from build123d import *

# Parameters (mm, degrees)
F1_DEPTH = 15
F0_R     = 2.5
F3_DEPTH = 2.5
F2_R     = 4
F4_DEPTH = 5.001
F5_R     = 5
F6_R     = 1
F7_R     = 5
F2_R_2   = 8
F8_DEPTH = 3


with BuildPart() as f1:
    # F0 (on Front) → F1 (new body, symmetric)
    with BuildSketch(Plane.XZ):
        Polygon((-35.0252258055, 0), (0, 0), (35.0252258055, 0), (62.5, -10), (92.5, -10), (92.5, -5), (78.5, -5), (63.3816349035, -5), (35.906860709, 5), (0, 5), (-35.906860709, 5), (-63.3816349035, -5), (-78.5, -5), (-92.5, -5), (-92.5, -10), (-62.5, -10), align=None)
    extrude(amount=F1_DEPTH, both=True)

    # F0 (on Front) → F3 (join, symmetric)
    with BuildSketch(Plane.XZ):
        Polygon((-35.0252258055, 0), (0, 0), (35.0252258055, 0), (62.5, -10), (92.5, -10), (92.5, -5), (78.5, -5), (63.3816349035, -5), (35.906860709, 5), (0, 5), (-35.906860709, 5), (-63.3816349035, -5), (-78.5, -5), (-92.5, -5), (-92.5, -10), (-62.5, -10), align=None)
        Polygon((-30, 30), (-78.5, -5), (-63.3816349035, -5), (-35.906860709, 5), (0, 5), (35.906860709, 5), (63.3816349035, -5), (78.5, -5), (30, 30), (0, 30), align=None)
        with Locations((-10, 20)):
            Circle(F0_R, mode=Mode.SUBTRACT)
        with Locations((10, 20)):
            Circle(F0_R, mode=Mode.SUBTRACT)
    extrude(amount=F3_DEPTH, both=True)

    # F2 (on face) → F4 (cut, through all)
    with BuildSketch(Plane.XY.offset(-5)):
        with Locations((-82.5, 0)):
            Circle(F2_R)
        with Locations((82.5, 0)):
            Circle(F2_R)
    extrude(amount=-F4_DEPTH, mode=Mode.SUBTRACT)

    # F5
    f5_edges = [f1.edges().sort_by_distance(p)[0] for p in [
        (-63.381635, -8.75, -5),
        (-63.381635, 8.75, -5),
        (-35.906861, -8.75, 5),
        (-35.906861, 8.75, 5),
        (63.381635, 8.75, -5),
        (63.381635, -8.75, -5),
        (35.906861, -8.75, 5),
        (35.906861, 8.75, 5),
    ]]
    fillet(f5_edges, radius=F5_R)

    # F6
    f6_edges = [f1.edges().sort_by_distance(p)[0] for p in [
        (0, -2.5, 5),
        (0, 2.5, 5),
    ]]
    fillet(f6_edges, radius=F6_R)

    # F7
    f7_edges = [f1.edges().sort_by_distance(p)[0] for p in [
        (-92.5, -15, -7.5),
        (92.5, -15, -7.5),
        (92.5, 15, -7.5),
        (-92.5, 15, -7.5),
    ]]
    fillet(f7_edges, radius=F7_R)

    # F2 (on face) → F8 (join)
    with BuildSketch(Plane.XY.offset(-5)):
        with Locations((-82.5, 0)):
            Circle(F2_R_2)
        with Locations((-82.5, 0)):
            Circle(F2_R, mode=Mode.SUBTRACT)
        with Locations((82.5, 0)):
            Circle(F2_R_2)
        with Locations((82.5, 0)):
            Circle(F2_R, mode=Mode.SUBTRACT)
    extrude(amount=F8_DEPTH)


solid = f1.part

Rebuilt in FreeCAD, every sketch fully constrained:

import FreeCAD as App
import Part
import Sketcher

V = App.Vector
Q = App.Units.Quantity


def edges_at(feature, points):
    """Names of the edges that pass closest to the given points."""
    edges = feature.Shape.Edges
    near = lambda p: min(range(len(edges)), key=lambda i: edges[i].distToShape(Part.Vertex(*p))[0])
    return sorted({f"Edge{near(p) + 1}" for p in points})


def add_polygon(sketch, points):
    """Adds a closed chain of lines whose ends are joined by coincident constraints."""
    first, n = sketch.GeometryCount, len(points)
    for a, b in zip(points, points[1:] + points[:1]):
        sketch.addGeometry(Part.LineSegment(App.Vector(*a, 0), App.Vector(*b, 0)), False)
    for i in range(n):
        sketch.addConstraint(Sketcher.Constraint("Coincident", first + i, 2, first + (i + 1) % n, 1))

doc = App.newDocument("Part")
params = doc.addObject("Spreadsheet::Sheet", "Params")
for row, (alias, value) in enumerate([
    ("sketch1_width", "30 mm"),
    ("sketch1_height", "5 mm"),
    ("pad1_length", "30 mm"),
    ("sketch2_diameter", "5 mm"),
    ("sketch2_width", "30 mm"),
    ("sketch2_width2", "14 mm"),
    ("sketch2_width3", "60 mm"),
    ("sketch2_height", "5 mm"),
    ("pad2_length", "5 mm"),
    ("sketch3_diameter", "8 mm"),
    ("fillet_radius", "5 mm"),
    ("fillet2_radius", "1 mm"),
    ("fillet3_radius", "5 mm"),
    ("sketch4_diameter", "16 mm"),
    ("sketch4_diameter2", "8 mm"),
    ("pad3_length", "3 mm"),
], start=1):
    params.set(f"A{row}", alias)
    params.set(f"B{row}", "=" + value)
    params.setAlias(f"B{row}", alias)

body = doc.addObject("PartDesign::Body", "Body")

# Sketch on XZ plane
sketch1 = body.newObject("Sketcher::SketchObject", "Sketch")
sketch1.AttachmentSupport = (doc.getObject("XZ_Plane"), [""])
sketch1.MapMode = "FlatFace"
add_polygon(sketch1, [(-35.025226, 0), (35.025226, 0), (62.5, -10), (92.5, -10), (92.5, -5), (63.381635, -5), (35.906861, 5), (-35.906861, 5), (-63.381635, -5), (-92.5, -5), (-92.5, -10), (-62.5, -10)])  # lines 0-11
sketch1.addConstraint([
    Sketcher.Constraint("Horizontal", 0),
    Sketcher.Constraint("Horizontal", 2),
    Sketcher.Constraint("Vertical", 3),
    Sketcher.Constraint("Horizontal", 4),
    Sketcher.Constraint("Horizontal", 6),
    Sketcher.Constraint("Horizontal", 8),
    Sketcher.Constraint("Vertical", 9),
    Sketcher.Constraint("Horizontal", 10),
    Sketcher.Constraint("Symmetric", 0, 2, 11, 2, -1, 1),
    Sketcher.Constraint("Symmetric", 4, 2, 7, 2, -2),
    Sketcher.Constraint("Symmetric", 2, 2, 9, 2, -2),
    Sketcher.Constraint("Parallel", 1, 5),
    Sketcher.Constraint("Parallel", 7, 11),
    Sketcher.Constraint("Equal", 2, 10),
    Sketcher.Constraint("Equal", 1, 5),
    Sketcher.Constraint("DistanceX", 2, 1, 2, 2, 30.0),
    Sketcher.Constraint("DistanceY", 3, 1, 3, 2, 5.0),
    Sketcher.Constraint("Angle", 1, Q("-20 deg")),
    Sketcher.Constraint("DistanceY", 1, 2, -1, 1, 10.0),
    Sketcher.Constraint("DistanceX", 8, 2, 1, 2, 155.0),
    Sketcher.Constraint("DistanceX", 6, 2, 6, 1, 71.813721),
])
sketch1.setExpression("Constraints[27]", "Params.sketch1_width")
sketch1.setExpression("Constraints[28]", "Params.sketch1_height")
pad1 = body.newObject("PartDesign::Pad", "Pad")
pad1.Profile = sketch1
pad1.setExpression("Length", "Params.pad1_length")
pad1.Midplane = True

# Sketch on XZ plane
sketch2 = body.newObject("Sketcher::SketchObject", "Sketch001")
sketch2.AttachmentSupport = (doc.getObject("XZ_Plane"), [""])
sketch2.MapMode = "FlatFace"
add_polygon(sketch2, [(-35.025226, 0), (35.025226, 0), (62.5, -10), (92.5, -10), (92.5, -5), (78.5, -5), (30, 30), (-30, 30), (-78.5, -5), (-92.5, -5), (-92.5, -10), (-62.5, -10)])  # lines 0-11
sketch2.addGeometry(Part.Circle(V(-10, 20, 0), V(0, 0, 1), 2.5), False)  # 12
sketch2.addGeometry(Part.Circle(V(10, 20, 0), V(0, 0, 1), 2.5), False)  # 13
sketch2.addConstraint([
    Sketcher.Constraint("Horizontal", 0),
    Sketcher.Constraint("Horizontal", 2),
    Sketcher.Constraint("Vertical", 3),
    Sketcher.Constraint("Horizontal", 4),
    Sketcher.Constraint("Horizontal", 6),
    Sketcher.Constraint("Horizontal", 8),
    Sketcher.Constraint("Vertical", 9),
    Sketcher.Constraint("Horizontal", 10),
    Sketcher.Constraint("Equal", 12, 13),
    Sketcher.Constraint("Symmetric", 0, 2, 11, 2, -1, 1),
    Sketcher.Constraint("Symmetric", 12, 3, 13, 3, -2),
    Sketcher.Constraint("Symmetric", 4, 2, 7, 2, -2),
    Sketcher.Constraint("Symmetric", 2, 2, 9, 2, -2),
    Sketcher.Constraint("Equal", 2, 10),
    Sketcher.Constraint("Equal", 5, 7),
    Sketcher.Constraint("Diameter", 12, 5.0),
    Sketcher.Constraint("DistanceX", 2, 1, 2, 2, 30.0),
    Sketcher.Constraint("DistanceX", 4, 2, 4, 1, 14.0),
    Sketcher.Constraint("DistanceX", 6, 2, 6, 1, 60.0),
    Sketcher.Constraint("DistanceY", 3, 1, 3, 2, 5.0),
    Sketcher.Constraint("Angle", 1, Q("-20 deg")),
    Sketcher.Constraint("DistanceX", 12, 3, -1, 1, 10.0),
    Sketcher.Constraint("DistanceY", -1, 1, 12, 3, 20.0),
    Sketcher.Constraint("DistanceY", 1, 2, -1, 1, 10.0),
    Sketcher.Constraint("DistanceY", -1, 1, 5, 2, 30.0),
    Sketcher.Constraint("DistanceX", -1, 1, 1, 2, 62.5),
])
sketch2.setExpression("Constraints[27]", "Params.sketch2_diameter")
sketch2.setExpression("Constraints[28]", "Params.sketch2_width")
sketch2.setExpression("Constraints[29]", "Params.sketch2_width2")
sketch2.setExpression("Constraints[30]", "Params.sketch2_width3")
sketch2.setExpression("Constraints[31]", "Params.sketch2_height")
pad2 = body.newObject("PartDesign::Pad", "Pad001")
pad2.Profile = sketch2
pad2.setExpression("Length", "Params.pad2_length")
pad2.Midplane = True

# Sketch on XY plane
sketch3 = body.newObject("Sketcher::SketchObject", "Sketch002")
sketch3.AttachmentSupport = (doc.getObject("XY_Plane"), [""])
sketch3.MapMode = "FlatFace"
sketch3.AttachmentOffset = App.Placement(V(0, 0, -5), App.Rotation())
sketch3.addGeometry([
    Part.Circle(V(-82.5, 0, 0), V(0, 0, 1), 4),
    Part.Circle(V(82.5, 0, 0), V(0, 0, 1), 4),
], False)
sketch3.addConstraint([
    Sketcher.Constraint("Equal", 0, 1),
    Sketcher.Constraint("Symmetric", 0, 3, 1, 3, -1, 1),
    Sketcher.Constraint("PointOnObject", 0, 3, -1),
    Sketcher.Constraint("Diameter", 0, 8.0),
    Sketcher.Constraint("DistanceX", 0, 3, 1, 3, 165.0),
])
sketch3.setExpression("Constraints[3]", "Params.sketch3_diameter")
pocket1 = body.newObject("PartDesign::Pocket", "Pocket")
pocket1.Profile = sketch3
pocket1.Type = "ThroughAll"
doc.recompute()

fillet = body.newObject("PartDesign::Fillet", "Fillet")
fillet.Base = (pocket1, edges_at(pocket1, [
    (-63.382, -8.75, -5),
    (-63.382, 8.75, -5),
    (-35.907, -8.75, 5),
    (-35.907, 8.75, 5),
    (63.382, 8.75, -5),
    (63.382, -8.75, -5),
    (35.907, -8.75, 5),
    (35.907, 8.75, 5),
]))
fillet.setExpression("Radius", "Params.fillet_radius")
doc.recompute()

fillet2 = body.newObject("PartDesign::Fillet", "Fillet001")
fillet2.Base = (fillet, edges_at(fillet, [(0, -2.5, 5), (0, 2.5, 5)]))
fillet2.setExpression("Radius", "Params.fillet2_radius")
doc.recompute()

fillet3 = body.newObject("PartDesign::Fillet", "Fillet002")
fillet3.Base = (fillet2, edges_at(fillet2, [
    (-92.5, -15, -7.5),
    (92.5, -15, -7.5),
    (92.5, 15, -7.5),
    (-92.5, 15, -7.5),
]))
fillet3.setExpression("Radius", "Params.fillet3_radius")

# Sketch on XY plane
sketch4 = body.newObject("Sketcher::SketchObject", "Sketch003")
sketch4.AttachmentSupport = (doc.getObject("XY_Plane"), [""])
sketch4.MapMode = "FlatFace"
sketch4.AttachmentOffset = App.Placement(V(0, 0, -5), App.Rotation())
sketch4.addGeometry([
    Part.Circle(V(-82.5, 0, 0), V(0, 0, 1), 8),
    Part.Circle(V(-82.5, 0, 0), V(0, 0, 1), 4),
    Part.Circle(V(82.5, 0, 0), V(0, 0, 1), 8),
    Part.Circle(V(82.5, 0, 0), V(0, 0, 1), 4),
], False)
sketch4.addConstraint([
    Sketcher.Constraint("Coincident", 1, 3, 0, 3),
    Sketcher.Constraint("Coincident", 3, 3, 2, 3),
    Sketcher.Constraint("Equal", 0, 2),
    Sketcher.Constraint("Equal", 1, 3),
    Sketcher.Constraint("Symmetric", 0, 3, 2, 3, -1, 1),
    Sketcher.Constraint("PointOnObject", 0, 3, -1),
    Sketcher.Constraint("Diameter", 0, 16.0),
    Sketcher.Constraint("Diameter", 1, 8.0),
    Sketcher.Constraint("DistanceX", 0, 3, 2, 3, 165.0),
])
sketch4.setExpression("Constraints[6]", "Params.sketch4_diameter")
sketch4.setExpression("Constraints[7]", "Params.sketch4_diameter2")
pad3 = body.newObject("PartDesign::Pad", "Pad002")
pad3.Profile = sketch4
pad3.setExpression("Length", "Params.pad3_length")

doc.recompute()
